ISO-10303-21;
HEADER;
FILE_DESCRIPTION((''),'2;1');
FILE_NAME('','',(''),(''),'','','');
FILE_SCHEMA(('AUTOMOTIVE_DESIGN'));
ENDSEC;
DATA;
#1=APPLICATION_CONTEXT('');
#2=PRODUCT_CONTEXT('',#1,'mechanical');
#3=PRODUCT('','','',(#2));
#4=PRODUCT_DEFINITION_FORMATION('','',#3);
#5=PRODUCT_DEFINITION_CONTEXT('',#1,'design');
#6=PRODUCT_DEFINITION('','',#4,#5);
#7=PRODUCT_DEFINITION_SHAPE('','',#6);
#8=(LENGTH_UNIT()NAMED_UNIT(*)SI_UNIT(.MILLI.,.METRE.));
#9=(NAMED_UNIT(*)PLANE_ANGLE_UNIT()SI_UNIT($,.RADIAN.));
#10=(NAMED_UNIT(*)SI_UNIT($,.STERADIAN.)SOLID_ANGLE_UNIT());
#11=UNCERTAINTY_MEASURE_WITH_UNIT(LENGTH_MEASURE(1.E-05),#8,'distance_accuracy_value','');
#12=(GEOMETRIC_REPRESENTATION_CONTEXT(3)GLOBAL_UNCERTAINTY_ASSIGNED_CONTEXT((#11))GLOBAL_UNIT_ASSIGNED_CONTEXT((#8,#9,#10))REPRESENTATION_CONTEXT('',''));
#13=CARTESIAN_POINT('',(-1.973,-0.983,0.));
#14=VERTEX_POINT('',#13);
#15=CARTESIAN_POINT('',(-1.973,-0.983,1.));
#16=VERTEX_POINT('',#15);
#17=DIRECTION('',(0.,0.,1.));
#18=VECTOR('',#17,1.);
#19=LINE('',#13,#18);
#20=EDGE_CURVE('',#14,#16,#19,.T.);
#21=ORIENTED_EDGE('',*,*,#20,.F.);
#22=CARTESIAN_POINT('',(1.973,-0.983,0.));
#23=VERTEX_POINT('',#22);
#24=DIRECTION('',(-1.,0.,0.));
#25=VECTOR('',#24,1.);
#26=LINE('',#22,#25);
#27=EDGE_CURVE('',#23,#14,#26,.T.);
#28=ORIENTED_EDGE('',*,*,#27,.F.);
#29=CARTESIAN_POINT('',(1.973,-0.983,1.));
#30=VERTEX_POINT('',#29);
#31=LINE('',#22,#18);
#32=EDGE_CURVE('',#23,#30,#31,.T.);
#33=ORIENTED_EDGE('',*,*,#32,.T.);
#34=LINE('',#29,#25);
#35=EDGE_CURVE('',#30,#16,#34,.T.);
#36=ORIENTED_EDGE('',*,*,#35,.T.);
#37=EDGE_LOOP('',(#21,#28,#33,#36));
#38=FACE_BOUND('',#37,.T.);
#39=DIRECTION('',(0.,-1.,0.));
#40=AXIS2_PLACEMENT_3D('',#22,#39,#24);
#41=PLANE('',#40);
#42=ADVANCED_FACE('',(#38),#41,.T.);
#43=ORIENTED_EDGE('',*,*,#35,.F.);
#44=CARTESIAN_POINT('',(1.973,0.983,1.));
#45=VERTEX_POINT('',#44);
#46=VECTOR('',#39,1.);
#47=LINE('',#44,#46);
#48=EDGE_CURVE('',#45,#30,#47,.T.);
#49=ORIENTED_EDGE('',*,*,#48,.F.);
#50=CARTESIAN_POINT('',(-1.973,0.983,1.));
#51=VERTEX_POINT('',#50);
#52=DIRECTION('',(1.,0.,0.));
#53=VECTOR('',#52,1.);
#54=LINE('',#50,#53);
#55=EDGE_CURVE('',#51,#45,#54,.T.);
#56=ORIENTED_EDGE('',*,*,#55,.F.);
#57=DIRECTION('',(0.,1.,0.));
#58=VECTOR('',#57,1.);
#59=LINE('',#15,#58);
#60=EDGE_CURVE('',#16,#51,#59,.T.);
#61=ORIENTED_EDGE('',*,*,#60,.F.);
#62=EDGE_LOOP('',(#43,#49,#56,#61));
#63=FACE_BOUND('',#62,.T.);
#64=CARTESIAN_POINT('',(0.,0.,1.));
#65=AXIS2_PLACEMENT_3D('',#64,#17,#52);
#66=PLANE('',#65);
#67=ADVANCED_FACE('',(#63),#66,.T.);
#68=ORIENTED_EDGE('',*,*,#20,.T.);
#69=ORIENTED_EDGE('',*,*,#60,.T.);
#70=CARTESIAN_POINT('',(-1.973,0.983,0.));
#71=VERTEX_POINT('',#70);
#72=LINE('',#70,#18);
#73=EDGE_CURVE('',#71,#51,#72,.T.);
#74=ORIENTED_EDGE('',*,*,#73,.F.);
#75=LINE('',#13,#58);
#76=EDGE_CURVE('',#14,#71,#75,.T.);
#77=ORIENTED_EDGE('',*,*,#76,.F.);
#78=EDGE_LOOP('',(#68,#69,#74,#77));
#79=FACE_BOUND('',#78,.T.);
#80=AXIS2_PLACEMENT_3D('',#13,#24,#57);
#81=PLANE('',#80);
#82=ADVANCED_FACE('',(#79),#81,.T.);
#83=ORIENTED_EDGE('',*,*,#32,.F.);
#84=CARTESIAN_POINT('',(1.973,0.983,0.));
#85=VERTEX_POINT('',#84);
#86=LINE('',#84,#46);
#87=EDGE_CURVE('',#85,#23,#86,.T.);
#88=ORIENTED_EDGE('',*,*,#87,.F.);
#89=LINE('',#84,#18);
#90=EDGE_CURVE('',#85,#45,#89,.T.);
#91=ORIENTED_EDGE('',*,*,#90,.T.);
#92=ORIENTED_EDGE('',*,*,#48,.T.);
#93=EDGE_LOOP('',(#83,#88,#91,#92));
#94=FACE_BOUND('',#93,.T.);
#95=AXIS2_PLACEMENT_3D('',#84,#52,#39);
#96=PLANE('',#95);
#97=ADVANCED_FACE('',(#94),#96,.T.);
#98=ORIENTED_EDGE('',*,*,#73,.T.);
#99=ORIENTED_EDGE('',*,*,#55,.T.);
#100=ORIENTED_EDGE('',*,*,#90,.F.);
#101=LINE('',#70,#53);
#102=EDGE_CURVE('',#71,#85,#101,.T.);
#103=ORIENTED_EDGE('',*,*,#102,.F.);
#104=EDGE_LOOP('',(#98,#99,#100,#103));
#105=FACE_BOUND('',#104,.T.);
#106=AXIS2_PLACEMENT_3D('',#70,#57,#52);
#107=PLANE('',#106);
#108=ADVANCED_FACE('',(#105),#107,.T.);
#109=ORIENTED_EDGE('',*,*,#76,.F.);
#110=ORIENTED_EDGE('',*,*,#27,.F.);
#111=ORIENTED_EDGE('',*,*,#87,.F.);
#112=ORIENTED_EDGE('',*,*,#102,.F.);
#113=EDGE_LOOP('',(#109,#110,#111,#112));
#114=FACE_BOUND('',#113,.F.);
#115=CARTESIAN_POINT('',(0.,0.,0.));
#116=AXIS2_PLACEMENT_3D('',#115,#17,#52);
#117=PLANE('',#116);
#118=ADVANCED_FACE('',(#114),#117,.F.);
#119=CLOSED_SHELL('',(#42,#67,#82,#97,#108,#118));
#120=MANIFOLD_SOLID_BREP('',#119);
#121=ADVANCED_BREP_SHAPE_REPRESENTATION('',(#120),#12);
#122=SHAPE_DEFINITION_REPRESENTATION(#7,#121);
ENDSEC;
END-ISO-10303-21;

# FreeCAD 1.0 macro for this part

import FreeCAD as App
import Part
import Sketcher
Q = App.Units.Quantity

doc = App.newDocument("Part")
body = doc.addObject("PartDesign::Body", "Body")

# Sketch on XY plane
sketch1 = body.newObject("Sketcher::SketchObject", "Sketch")
sketch1.AttachmentSupport = (doc.getObject("XY_Plane"), [""])
sketch1.MapMode = "FlatFace"
sketch1.addGeometry([
    Part.LineSegment(App.Vector(2, 1, 0), App.Vector(-2, 1, 0)),
    Part.LineSegment(App.Vector(-2, 1, 0), App.Vector(-2, -1, 0)),
    Part.LineSegment(App.Vector(-2, -1, 0), App.Vector(2, -1, 0)),
    Part.LineSegment(App.Vector(2, -1, 0), App.Vector(2, 1, 0)),
], False)
sketch1.addConstraint([
    Sketcher.Constraint("Coincident", 0, 2, 1, 1),
    Sketcher.Constraint("Coincident", 1, 2, 2, 1),
    Sketcher.Constraint("Coincident", 2, 2, 3, 1),
    Sketcher.Constraint("Coincident", 3, 2, 0, 1),
    Sketcher.Constraint("Horizontal", 0),
    Sketcher.Constraint("Vertical", 1),
    Sketcher.Constraint("Horizontal", 2),
    Sketcher.Constraint("Vertical", 3),
    Sketcher.Constraint("Symmetric", 0, 2, 2, 2, -1, 1),
    Sketcher.Constraint("DistanceX", 0, 2, 0, 1, Q("3.946 mm")),
    Sketcher.Constraint("DistanceY", 1, 2, 1, 1, Q("1.966 mm")),
])
pad1 = body.newObject("PartDesign::Pad", "Pad")
pad1.Profile = sketch1
pad1.Length = 1

doc.recompute()
